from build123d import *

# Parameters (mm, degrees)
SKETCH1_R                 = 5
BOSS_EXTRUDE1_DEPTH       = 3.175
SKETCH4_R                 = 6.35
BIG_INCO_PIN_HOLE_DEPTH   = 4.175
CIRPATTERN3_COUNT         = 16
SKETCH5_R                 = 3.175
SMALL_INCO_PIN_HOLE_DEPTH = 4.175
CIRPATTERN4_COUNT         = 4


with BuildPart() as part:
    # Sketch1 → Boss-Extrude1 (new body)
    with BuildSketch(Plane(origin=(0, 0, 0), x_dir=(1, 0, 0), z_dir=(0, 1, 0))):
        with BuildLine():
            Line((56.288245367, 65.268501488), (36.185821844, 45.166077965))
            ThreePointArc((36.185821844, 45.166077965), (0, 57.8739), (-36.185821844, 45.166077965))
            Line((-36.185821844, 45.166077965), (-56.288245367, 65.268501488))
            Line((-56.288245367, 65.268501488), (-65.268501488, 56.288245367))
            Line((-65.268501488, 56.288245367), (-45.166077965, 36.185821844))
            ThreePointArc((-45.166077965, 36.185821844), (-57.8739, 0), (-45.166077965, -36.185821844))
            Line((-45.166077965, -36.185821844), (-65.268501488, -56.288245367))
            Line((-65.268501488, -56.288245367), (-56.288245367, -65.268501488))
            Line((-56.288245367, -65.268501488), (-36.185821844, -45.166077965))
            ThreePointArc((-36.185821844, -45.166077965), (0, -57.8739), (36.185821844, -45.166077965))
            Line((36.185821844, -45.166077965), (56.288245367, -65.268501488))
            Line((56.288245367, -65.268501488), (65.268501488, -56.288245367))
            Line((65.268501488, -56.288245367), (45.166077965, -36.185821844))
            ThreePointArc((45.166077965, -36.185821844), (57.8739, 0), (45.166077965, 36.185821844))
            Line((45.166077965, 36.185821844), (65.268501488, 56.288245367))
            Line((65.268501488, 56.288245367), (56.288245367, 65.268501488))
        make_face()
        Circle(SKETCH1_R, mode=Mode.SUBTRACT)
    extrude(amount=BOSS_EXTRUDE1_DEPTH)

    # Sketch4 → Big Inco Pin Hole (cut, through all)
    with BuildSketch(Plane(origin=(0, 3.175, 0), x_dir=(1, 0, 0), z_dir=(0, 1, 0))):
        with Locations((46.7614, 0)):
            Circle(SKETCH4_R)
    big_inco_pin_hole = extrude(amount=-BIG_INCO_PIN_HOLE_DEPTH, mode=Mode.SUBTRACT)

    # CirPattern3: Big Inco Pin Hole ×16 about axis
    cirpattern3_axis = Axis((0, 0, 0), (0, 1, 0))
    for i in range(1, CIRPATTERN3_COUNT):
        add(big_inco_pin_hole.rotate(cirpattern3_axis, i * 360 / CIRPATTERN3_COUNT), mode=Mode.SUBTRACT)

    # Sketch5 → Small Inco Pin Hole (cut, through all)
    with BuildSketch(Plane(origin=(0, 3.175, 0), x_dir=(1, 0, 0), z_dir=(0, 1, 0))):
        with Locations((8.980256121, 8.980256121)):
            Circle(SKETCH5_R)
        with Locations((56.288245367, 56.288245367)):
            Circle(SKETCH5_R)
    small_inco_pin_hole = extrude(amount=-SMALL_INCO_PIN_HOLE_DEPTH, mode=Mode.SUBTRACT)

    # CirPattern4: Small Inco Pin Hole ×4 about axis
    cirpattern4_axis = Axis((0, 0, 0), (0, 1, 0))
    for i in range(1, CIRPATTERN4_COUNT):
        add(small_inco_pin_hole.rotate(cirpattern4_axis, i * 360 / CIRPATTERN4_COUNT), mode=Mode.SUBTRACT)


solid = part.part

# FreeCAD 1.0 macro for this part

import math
import FreeCAD as App
import Part
import Sketcher
Q = App.Units.Quantity

doc = App.newDocument("Part")
body = doc.addObject("PartDesign::Body", "Body")

sketch1 = body.newObject("Sketcher::SketchObject", "Sketch")
sketch1.AttachmentSupport = (doc.getObject("XZ_Plane"), [""])
sketch1.MapMode = "FlatFace"
sketch1.addGeometry([
    Part.LineSegment(App.Vector(56, -65, 0), App.Vector(36, -45, 0)),
    Part.ArcOfCircle(Part.Circle(App.Vector(0, 0, 0), App.Vector(0, 0, 1), 58), math.radians(-129), math.radians(-51)),
    Part.LineSegment(App.Vector(-36, -45, 0), App.Vector(-56, -65, 0)),
    Part.LineSegment(App.Vector(-56, -65, 0), App.Vector(-65, -56, 0)),
    Part.LineSegment(App.Vector(-65, -56, 0), App.Vector(-45, -36, 0)),
    Part.ArcOfCircle(Part.Circle(App.Vector(0, 0, 0), App.Vector(0, 0, 1), 58), math.radians(141), math.radians(219)),
    Part.LineSegment(App.Vector(-45, 36, 0), App.Vector(-65, 56, 0)),
    Part.LineSegment(App.Vector(-65, 56, 0), App.Vector(-56, 65, 0)),
    Part.LineSegment(App.Vector(-56, 65, 0), App.Vector(-36, 45, 0)),
    Part.ArcOfCircle(Part.Circle(App.Vector(0, 0, 0), App.Vector(0, 0, 1), 58), math.radians(51), math.radians(129)),
    Part.LineSegment(App.Vector(36, 45, 0), App.Vector(56, 65, 0)),
    Part.LineSegment(App.Vector(56, 65, 0), App.Vector(65, 56, 0)),
    Part.LineSegment(App.Vector(65, 56, 0), App.Vector(45, 36, 0)),
    Part.ArcOfCircle(Part.Circle(App.Vector(0, 0, 0), App.Vector(0, 0, 1), 58), math.radians(-39), math.radians(39)),
    Part.LineSegment(App.Vector(45, -36, 0), App.Vector(65, -56, 0)),
    Part.LineSegment(App.Vector(65, -56, 0), App.Vector(56, -65, 0)),
    Part.Circle(App.Vector(0, 0, 0), App.Vector(0, 0, 1), 5),
], False)
sketch1.addConstraint([
    Sketcher.Constraint("Coincident", 0, 2, 1, 2),
    Sketcher.Constraint("Coincident", 1, 1, 2, 1),
    Sketcher.Constraint("Coincident", 2, 2, 3, 1),
    Sketcher.Constraint("Coincident", 3, 2, 4, 1),
    Sketcher.Constraint("Coincident", 4, 2, 5, 2),
    Sketcher.Constraint("Coincident", 5, 1, 6, 1),
    Sketcher.Constraint("Coincident", 6, 2, 7, 1),
    Sketcher.Constraint("Coincident", 7, 2, 8, 1),
    Sketcher.Constraint("Coincident", 8, 2, 9, 2),
    Sketcher.Constraint("Coincident", 9, 1, 10, 1),
    Sketcher.Constraint("Coincident", 10, 2, 11, 1),
    Sketcher.Constraint("Coincident", 11, 2, 12, 1),
    Sketcher.Constraint("Coincident", 12, 2, 13, 2),
    Sketcher.Constraint("Coincident", 13, 1, 14, 1),
    Sketcher.Constraint("Coincident", 14, 2, 15, 1),
    Sketcher.Constraint("Coincident", 15, 2, 0, 1),
    Sketcher.Constraint("Coincident", 1, 3, -1, 1),
    Sketcher.Constraint("Coincident", 5, 3, -1, 1),
    Sketcher.Constraint("Coincident", 9, 3, -1, 1),
    Sketcher.Constraint("Coincident", 13, 3, -1, 1),
    Sketcher.Constraint("Coincident", 16, 3, -1, 1),
    Sketcher.Constraint("Equal", 1, 5),
    Sketcher.Constraint("Equal", 5, 9),
    Sketcher.Constraint("Equal", 9, 13),
    Sketcher.Constraint("Symmetric", 2, 2, 10, 2, -1, 1),
    Sketcher.Constraint("Symmetric", 3, 2, 11, 2, -1, 1),
    Sketcher.Constraint("Symmetric", 6, 2, 14, 2, -1, 1),
    Sketcher.Constraint("Symmetric", 7, 2, 15, 2, -1, 1),
    Sketcher.Constraint("Symmetric", 7, 2, 10, 2, -2),
    Sketcher.Constraint("Symmetric", 6, 2, 11, 2, -2),
    Sketcher.Constraint("Perpendicular", 0, 2),
    Sketcher.Constraint("Perpendicular", 2, 3),
    Sketcher.Constraint("Perpendicular", 3, 4),
    Sketcher.Constraint("Perpendicular", 4, 6),
    Sketcher.Constraint("Perpendicular", 6, 7),
    Sketcher.Constraint("Perpendicular", 7, 8),
    Sketcher.Constraint("Perpendicular", 8, 10),
    Sketcher.Constraint("Perpendicular", 11, 12),
    Sketcher.Constraint("Perpendicular", 12, 14),
    Sketcher.Constraint("Equal", 2, 4),
    Sketcher.Constraint("Distance", 3, Q("0.5 in")),
    Sketcher.Constraint("Radius", 1, Q("2.2785 in")),
    Sketcher.Constraint("Diameter", 16, Q("10 mm")),
    Sketcher.Constraint("DistanceY", 2, 2, -1, 1, Q("65.268501 mm")),
])
pad1 = body.newObject("PartDesign::Pad", "Pad")
pad1.Profile = sketch1
pad1.Length = Q("0.125 in")
pad1.Reversed = True

sketch2 = body.newObject("Sketcher::SketchObject", "Sketch001")
sketch2.AttachmentSupport = (doc.getObject("XZ_Plane"), [""])
sketch2.MapMode = "FlatFace"
sketch2.AttachmentOffset = App.Placement(App.Vector(0, 0, -0.125 * 25.4), App.Rotation())
sketch2.addGeometry(Part.Circle(App.Vector(47, 0, 0), App.Vector(0, 0, 1), 6), False)
sketch2.addConstraint([
    Sketcher.Constraint("PointOnObject", 0, 3, -1),
    Sketcher.Constraint("Diameter", 0, Q("0.5 in")),
    Sketcher.Constraint("DistanceX", -1, 1, 0, 3, Q("1.841 in")),
])
pocket1 = body.newObject("PartDesign::Pocket", "Pocket")
pocket1.Profile = sketch2
pocket1.Type = "ThroughAll"
pocket1.Reversed = True
doc.recompute()

polarpattern = body.newObject("PartDesign::PolarPattern", "PolarPattern")
polarpattern.Originals = [pocket1]
polarpattern.Axis = (doc.getObject("Y_Axis"), [""])
polarpattern.Angle = 360
polarpattern.Occurrences = 16
body.Tip = polarpattern

sketch3 = body.newObject("Sketcher::SketchObject", "Sketch002")
sketch3.AttachmentSupport = (doc.getObject("XZ_Plane"), [""])
sketch3.MapMode = "FlatFace"
sketch3.AttachmentOffset = App.Placement(App.Vector(0, 0, -0.125 * 25.4), App.Rotation())
sketch3.addGeometry([
    Part.Circle(App.Vector(9, -9, 0), App.Vector(0, 0, 1), 3.2),
    Part.Circle(App.Vector(56.3, -56.3, 0), App.Vector(0, 0, 1), 3.2),
], False)
sketch3.addConstraint([
    Sketcher.Constraint("Equal", 0, 1),
    Sketcher.Constraint("Diameter", 0, Q("0.25 in")),
    Sketcher.Constraint("DistanceX", 0, 3, 1, 3, Q("47.307989 mm")),
    Sketcher.Constraint("DistanceY", 1, 3, 0, 3, Q("47.307989 mm")),
    Sketcher.Constraint("DistanceX", -1, 1, 0, 3, Q("8.980256 mm")),
    Sketcher.Constraint("DistanceY", 0, 3, -1, 1, Q("8.980256 mm")),
])
pocket2 = body.newObject("PartDesign::Pocket", "Pocket001")
pocket2.Profile = sketch3
pocket2.Type = "ThroughAll"
pocket2.Reversed = True
doc.recompute()

polarpattern2 = body.newObject("PartDesign::PolarPattern", "PolarPattern001")
polarpattern2.Originals = [pocket2]
polarpattern2.Axis = (doc.getObject("Y_Axis"), [""])
polarpattern2.Angle = 360
polarpattern2.Occurrences = 4
body.Tip = polarpattern2

doc.recompute()
